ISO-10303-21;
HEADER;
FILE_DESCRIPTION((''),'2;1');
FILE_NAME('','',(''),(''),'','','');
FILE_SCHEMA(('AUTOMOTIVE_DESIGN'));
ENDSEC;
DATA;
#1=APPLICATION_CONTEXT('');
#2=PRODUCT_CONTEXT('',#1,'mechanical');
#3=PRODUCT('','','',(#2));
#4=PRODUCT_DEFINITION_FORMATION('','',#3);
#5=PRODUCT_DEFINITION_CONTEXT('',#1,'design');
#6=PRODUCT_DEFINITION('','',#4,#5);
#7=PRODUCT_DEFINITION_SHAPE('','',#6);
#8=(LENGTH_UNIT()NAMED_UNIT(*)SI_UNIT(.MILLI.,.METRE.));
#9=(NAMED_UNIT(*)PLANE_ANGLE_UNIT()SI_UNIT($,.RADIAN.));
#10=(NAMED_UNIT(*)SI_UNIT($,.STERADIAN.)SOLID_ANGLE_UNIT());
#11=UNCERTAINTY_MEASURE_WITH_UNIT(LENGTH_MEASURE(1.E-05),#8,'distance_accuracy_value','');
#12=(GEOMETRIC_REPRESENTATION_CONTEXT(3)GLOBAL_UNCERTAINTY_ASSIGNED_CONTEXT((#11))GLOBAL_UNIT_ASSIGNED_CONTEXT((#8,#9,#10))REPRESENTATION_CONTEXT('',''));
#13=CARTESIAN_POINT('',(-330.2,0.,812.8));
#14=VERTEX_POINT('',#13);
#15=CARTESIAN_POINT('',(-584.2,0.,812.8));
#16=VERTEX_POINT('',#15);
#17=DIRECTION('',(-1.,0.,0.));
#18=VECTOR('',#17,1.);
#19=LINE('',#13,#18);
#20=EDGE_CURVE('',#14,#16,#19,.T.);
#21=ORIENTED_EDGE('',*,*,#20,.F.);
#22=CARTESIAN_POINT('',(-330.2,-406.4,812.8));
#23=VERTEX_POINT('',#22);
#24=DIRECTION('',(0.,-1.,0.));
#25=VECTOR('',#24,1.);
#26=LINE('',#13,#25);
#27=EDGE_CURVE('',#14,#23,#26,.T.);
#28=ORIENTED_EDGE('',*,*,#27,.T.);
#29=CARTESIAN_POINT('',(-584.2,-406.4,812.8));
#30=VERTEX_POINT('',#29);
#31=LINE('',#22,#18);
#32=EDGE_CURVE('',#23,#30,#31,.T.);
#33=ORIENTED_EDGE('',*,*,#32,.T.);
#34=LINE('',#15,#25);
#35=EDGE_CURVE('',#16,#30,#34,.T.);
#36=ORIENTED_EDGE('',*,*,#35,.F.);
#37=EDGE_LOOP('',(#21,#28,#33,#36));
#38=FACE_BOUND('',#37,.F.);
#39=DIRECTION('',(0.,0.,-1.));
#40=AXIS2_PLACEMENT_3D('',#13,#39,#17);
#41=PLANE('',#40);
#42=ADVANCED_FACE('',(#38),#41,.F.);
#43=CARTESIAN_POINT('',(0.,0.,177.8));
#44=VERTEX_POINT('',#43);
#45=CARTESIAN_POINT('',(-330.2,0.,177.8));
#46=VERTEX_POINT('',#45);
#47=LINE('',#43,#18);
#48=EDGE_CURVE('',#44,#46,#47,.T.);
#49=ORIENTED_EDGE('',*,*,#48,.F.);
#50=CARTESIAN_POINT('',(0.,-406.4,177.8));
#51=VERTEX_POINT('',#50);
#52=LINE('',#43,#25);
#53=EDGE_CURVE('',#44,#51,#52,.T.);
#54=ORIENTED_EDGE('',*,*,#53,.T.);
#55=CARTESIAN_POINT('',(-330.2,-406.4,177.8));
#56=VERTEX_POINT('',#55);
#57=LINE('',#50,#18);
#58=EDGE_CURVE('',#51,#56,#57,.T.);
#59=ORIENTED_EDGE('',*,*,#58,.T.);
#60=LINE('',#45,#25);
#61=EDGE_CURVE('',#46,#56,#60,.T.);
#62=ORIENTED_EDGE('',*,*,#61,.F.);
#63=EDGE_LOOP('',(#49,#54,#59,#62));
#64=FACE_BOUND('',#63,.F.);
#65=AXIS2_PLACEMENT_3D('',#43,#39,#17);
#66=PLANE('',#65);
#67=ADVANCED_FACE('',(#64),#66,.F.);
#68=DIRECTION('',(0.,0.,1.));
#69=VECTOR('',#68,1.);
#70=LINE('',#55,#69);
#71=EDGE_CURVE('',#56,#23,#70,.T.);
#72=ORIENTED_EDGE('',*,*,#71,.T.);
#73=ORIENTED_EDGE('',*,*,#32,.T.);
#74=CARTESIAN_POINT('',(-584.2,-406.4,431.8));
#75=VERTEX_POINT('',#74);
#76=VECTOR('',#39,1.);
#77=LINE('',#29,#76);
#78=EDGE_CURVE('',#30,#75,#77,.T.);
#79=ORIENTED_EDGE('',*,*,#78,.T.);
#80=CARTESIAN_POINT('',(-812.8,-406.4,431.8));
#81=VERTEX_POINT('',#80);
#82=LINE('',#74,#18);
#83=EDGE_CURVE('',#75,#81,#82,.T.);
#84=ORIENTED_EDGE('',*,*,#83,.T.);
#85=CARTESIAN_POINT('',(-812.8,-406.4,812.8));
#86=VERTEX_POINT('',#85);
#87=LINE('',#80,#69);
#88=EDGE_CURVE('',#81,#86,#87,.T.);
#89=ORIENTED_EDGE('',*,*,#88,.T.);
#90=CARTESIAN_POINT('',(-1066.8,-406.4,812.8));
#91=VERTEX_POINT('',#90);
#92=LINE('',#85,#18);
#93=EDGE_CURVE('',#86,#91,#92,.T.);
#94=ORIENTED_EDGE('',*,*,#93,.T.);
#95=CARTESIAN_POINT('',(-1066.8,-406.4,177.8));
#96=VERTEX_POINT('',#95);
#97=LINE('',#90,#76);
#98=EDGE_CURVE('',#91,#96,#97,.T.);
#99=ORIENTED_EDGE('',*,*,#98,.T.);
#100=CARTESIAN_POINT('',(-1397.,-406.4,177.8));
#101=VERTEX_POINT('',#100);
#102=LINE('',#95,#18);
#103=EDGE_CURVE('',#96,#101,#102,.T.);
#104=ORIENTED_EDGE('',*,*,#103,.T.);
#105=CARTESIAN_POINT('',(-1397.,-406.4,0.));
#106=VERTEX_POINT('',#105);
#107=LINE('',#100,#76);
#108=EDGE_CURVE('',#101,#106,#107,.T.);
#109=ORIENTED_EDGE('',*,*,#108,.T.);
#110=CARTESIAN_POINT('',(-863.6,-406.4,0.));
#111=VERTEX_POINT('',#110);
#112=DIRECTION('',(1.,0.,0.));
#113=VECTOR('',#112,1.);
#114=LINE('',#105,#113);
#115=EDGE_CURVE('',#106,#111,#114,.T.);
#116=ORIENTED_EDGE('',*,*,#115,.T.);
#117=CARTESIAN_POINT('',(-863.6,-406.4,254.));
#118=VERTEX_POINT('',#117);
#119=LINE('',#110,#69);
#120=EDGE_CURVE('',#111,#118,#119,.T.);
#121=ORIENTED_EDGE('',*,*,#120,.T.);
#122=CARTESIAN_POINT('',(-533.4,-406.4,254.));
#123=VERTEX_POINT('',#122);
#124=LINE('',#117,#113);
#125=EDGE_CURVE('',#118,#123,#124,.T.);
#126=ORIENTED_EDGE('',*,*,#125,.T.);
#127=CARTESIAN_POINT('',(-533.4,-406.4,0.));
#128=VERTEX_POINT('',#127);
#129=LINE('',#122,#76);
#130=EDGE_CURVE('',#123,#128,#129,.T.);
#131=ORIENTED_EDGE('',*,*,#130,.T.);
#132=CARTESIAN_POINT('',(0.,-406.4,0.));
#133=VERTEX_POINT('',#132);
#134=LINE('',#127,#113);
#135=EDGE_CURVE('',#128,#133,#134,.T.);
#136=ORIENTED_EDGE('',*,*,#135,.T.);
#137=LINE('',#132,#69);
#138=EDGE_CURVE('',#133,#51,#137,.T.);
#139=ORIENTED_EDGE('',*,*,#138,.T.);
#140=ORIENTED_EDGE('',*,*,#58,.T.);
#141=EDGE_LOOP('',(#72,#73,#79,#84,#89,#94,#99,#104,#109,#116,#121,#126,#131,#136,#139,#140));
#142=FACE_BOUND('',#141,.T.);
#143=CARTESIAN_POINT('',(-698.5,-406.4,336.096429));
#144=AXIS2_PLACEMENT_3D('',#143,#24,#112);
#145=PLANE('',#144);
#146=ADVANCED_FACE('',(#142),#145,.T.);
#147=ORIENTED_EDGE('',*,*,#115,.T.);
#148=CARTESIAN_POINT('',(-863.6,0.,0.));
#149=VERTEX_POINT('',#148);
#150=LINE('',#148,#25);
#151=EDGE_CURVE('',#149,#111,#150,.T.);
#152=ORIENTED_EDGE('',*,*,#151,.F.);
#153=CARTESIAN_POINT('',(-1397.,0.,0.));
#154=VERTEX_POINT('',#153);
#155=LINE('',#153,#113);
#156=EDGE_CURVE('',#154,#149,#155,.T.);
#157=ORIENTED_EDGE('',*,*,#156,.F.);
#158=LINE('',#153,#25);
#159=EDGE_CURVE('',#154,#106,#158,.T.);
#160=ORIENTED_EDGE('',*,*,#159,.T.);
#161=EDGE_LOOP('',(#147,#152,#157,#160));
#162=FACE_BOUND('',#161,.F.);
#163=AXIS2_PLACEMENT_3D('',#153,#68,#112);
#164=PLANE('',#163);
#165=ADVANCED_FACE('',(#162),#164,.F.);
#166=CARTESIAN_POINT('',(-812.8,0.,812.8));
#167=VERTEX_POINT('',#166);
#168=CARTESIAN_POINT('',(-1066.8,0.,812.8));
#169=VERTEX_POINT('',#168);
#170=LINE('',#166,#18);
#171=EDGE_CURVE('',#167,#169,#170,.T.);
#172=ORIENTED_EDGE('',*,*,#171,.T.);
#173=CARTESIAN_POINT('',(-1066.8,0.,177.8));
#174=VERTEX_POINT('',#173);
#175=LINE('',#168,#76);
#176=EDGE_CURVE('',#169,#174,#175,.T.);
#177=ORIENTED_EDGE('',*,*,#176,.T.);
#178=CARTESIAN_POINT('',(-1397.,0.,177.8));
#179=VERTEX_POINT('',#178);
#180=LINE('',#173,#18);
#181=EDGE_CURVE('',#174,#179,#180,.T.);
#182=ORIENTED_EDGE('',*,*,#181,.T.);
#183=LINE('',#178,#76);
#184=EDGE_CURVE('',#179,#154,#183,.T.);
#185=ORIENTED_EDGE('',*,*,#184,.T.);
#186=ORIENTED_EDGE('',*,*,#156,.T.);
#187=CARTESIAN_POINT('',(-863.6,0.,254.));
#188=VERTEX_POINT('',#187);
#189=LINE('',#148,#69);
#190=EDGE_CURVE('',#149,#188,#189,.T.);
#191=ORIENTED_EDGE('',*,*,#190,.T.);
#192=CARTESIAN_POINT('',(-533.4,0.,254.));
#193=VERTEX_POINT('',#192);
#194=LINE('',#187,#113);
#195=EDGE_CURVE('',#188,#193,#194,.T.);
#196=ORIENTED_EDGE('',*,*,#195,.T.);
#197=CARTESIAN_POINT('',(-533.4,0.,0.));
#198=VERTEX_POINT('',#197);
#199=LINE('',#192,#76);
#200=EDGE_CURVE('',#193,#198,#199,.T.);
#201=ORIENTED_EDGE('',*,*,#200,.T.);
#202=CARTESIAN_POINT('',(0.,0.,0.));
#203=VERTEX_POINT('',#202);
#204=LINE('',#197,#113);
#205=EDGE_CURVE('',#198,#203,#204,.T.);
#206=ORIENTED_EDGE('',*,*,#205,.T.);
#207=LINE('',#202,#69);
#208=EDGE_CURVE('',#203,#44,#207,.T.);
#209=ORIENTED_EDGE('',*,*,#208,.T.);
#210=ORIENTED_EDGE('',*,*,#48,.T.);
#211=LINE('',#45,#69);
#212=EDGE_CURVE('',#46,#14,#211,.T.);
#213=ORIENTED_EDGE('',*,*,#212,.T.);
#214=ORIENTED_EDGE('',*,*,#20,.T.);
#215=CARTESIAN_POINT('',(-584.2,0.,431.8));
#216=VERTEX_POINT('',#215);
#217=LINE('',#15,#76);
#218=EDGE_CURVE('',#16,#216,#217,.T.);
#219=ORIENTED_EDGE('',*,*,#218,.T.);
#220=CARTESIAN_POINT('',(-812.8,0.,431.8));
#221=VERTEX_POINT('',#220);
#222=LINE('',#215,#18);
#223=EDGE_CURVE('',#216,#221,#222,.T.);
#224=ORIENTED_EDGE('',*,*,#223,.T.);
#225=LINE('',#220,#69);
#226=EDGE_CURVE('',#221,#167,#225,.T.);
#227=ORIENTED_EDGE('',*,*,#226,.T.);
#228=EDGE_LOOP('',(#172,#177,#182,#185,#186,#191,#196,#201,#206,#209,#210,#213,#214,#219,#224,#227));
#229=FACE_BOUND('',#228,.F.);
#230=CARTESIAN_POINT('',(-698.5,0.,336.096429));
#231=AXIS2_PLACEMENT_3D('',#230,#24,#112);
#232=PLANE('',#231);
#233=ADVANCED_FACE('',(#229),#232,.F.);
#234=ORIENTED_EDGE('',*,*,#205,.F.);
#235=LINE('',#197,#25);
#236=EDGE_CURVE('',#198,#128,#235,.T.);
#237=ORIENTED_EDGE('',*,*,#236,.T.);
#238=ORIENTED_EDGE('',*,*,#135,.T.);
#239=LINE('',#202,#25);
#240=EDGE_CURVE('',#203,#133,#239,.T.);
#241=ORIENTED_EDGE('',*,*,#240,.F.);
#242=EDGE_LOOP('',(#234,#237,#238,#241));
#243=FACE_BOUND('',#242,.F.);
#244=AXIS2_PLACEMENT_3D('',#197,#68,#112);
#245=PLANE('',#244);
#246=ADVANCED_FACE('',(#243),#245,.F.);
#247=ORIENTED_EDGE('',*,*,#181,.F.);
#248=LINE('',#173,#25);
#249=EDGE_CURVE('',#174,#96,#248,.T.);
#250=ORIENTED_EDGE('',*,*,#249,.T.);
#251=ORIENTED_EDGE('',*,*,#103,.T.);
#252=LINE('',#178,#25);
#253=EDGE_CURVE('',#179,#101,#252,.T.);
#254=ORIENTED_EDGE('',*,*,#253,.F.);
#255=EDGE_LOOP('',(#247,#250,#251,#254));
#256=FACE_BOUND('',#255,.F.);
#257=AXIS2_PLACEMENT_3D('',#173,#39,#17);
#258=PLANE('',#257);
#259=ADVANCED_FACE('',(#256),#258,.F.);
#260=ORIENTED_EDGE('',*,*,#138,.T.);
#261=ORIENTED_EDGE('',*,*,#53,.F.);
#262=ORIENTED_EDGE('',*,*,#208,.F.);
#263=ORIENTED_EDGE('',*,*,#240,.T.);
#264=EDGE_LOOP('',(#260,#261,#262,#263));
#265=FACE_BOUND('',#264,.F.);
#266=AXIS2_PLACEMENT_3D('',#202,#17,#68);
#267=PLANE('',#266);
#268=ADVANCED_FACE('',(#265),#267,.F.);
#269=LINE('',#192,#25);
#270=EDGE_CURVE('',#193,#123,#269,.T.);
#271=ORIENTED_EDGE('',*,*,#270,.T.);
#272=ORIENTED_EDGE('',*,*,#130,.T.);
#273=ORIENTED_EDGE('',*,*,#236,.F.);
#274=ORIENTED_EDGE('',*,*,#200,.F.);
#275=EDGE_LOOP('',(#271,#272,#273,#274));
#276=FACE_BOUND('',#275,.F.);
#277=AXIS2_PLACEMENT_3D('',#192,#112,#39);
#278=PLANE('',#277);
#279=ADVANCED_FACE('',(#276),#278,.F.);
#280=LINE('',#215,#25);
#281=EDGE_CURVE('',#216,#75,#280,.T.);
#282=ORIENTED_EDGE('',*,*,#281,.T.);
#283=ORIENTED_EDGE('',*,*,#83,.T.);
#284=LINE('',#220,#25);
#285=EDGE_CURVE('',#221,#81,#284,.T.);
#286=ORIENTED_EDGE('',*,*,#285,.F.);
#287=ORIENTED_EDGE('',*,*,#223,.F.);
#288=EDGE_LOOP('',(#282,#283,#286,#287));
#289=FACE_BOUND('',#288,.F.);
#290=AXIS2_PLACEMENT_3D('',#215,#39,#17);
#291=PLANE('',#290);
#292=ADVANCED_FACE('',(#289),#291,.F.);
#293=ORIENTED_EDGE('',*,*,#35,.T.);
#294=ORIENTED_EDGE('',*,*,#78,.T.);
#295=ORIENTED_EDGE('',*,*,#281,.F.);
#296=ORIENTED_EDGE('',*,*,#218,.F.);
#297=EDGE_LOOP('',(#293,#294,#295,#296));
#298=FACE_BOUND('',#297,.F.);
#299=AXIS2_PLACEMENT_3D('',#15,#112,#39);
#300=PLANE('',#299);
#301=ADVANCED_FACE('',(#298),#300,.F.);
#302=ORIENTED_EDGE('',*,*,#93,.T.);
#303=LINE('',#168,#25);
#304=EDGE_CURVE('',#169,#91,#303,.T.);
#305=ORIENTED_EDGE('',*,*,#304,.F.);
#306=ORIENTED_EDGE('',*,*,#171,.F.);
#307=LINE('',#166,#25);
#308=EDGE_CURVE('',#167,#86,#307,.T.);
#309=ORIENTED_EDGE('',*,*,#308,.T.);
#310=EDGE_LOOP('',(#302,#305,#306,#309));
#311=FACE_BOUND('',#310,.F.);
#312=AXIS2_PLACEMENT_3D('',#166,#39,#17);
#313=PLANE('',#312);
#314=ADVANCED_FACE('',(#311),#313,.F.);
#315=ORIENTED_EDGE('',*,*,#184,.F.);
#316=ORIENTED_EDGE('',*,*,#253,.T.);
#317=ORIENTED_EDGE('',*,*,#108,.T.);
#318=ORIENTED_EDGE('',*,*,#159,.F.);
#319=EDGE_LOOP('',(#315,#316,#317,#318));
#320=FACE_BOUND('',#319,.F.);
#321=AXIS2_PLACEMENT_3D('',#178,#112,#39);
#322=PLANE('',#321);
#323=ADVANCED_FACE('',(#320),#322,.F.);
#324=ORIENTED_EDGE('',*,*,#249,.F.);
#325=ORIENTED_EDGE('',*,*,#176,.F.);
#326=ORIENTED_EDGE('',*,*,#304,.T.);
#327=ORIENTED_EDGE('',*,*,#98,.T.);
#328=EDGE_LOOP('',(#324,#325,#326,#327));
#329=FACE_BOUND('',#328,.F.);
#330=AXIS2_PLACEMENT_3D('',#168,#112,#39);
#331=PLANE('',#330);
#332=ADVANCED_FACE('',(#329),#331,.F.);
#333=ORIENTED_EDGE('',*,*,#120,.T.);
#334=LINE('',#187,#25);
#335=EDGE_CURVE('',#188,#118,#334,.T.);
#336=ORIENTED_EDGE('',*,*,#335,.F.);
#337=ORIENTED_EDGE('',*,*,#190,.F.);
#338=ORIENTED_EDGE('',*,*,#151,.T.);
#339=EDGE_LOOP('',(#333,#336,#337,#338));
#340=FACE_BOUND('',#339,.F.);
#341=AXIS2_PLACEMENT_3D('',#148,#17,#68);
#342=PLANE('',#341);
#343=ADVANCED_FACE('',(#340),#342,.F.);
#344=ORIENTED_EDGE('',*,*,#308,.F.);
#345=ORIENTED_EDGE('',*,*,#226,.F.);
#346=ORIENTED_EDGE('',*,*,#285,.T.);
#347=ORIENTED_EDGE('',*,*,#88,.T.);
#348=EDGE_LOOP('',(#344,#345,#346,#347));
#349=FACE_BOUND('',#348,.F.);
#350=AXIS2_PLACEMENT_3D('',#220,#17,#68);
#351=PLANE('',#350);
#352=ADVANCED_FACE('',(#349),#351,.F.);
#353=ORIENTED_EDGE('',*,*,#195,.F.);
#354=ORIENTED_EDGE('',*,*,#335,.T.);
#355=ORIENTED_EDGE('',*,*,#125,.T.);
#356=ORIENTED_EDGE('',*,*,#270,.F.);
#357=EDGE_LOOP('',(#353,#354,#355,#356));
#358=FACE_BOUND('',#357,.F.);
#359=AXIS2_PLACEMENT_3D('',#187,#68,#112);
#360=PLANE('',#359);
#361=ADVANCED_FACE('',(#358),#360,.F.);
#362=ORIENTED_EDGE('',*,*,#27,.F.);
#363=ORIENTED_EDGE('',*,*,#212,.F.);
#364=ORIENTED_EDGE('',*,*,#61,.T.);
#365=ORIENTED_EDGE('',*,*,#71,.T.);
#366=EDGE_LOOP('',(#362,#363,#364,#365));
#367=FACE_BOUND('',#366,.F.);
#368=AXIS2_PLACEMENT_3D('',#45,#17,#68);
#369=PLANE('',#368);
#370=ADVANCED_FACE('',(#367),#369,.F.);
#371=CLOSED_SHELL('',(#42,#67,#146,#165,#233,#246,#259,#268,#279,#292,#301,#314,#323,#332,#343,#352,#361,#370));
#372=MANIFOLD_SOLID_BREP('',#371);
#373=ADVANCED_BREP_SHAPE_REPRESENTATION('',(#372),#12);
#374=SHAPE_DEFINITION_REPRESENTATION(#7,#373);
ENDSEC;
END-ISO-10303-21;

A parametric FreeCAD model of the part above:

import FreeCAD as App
import Part
import Sketcher
from FreeCAD import Vector
Q = App.Units.Quantity

doc = App.newDocument("Part")
body = doc.addObject("PartDesign::Body", "Body")

sketch1 = body.newObject("Sketcher::SketchObject", "Sketch")
sketch1.AttachmentSupport = (doc.getObject("XZ_Plane"), [""])
sketch1.MapMode = "FlatFace"
sketch1.addGeometry(Part.LineSegment(Vector(-533.4, 0, 0), Vector(0, 0, 0)), False)
sketch1.addGeometry(Part.LineSegment(Vector(0, 0, 0), Vector(0, 177.8, 0)), False)
sketch1.addGeometry(Part.LineSegment(Vector(0, 177.8, 0), Vector(-330.2, 177.8, 0)), False)
sketch1.addGeometry(Part.LineSegment(Vector(-330.2, 177.8, 0), Vector(-330.2, 812.8, 0)), False)
sketch1.addGeometry(Part.LineSegment(Vector(-330.2, 812.8, 0), Vector(-584.2, 812.8, 0)), False)
sketch1.addGeometry(Part.LineSegment(Vector(-584.2, 812.8, 0), Vector(-584.2, 431.8, 0)), False)
sketch1.addGeometry(Part.LineSegment(Vector(-584.2, 431.8, 0), Vector(-812.8, 431.8, 0)), False)
sketch1.addGeometry(Part.LineSegment(Vector(-812.8, 431.8, 0), Vector(-812.8, 812.8, 0)), False)
sketch1.addGeometry(Part.LineSegment(Vector(-812.8, 812.8, 0), Vector(-1066.8, 812.8, 0)), False)
sketch1.addGeometry(Part.LineSegment(Vector(-1066.8, 812.8, 0), Vector(-1066.8, 177.8, 0)), False)
sketch1.addGeometry(Part.LineSegment(Vector(-1066.8, 177.8, 0), Vector(-1397, 177.8, 0)), False)
sketch1.addGeometry(Part.LineSegment(Vector(-1397, 177.8, 0), Vector(-1397, 0, 0)), False)
sketch1.addGeometry(Part.LineSegment(Vector(-1397, 0, 0), Vector(-863.6, 0, 0)), False)
sketch1.addGeometry(Part.LineSegment(Vector(-863.6, 0, 0), Vector(-863.6, 254, 0)), False)
sketch1.addGeometry(Part.LineSegment(Vector(-863.6, 254, 0), Vector(-533.4, 254, 0)), False)
sketch1.addGeometry(Part.LineSegment(Vector(-533.4, 254, 0), Vector(-533.4, 0, 0)), False)
sketch1.addConstraint(Sketcher.Constraint("Coincident", 0, 2, 1, 1))
sketch1.addConstraint(Sketcher.Constraint("Coincident", 1, 2, 2, 1))
sketch1.addConstraint(Sketcher.Constraint("Coincident", 2, 2, 3, 1))
sketch1.addConstraint(Sketcher.Constraint("Coincident", 3, 2, 4, 1))
sketch1.addConstraint(Sketcher.Constraint("Coincident", 4, 2, 5, 1))
sketch1.addConstraint(Sketcher.Constraint("Coincident", 5, 2, 6, 1))
sketch1.addConstraint(Sketcher.Constraint("Coincident", 6, 2, 7, 1))
sketch1.addConstraint(Sketcher.Constraint("Coincident", 7, 2, 8, 1))
sketch1.addConstraint(Sketcher.Constraint("Coincident", 8, 2, 9, 1))
sketch1.addConstraint(Sketcher.Constraint("Coincident", 9, 2, 10, 1))
sketch1.addConstraint(Sketcher.Constraint("Coincident", 10, 2, 11, 1))
sketch1.addConstraint(Sketcher.Constraint("Coincident", 11, 2, 12, 1))
sketch1.addConstraint(Sketcher.Constraint("Coincident", 12, 2, 13, 1))
sketch1.addConstraint(Sketcher.Constraint("Coincident", 13, 2, 14, 1))
sketch1.addConstraint(Sketcher.Constraint("Coincident", 14, 2, 15, 1))
sketch1.addConstraint(Sketcher.Constraint("Coincident", 15, 2, 0, 1))
sketch1.addConstraint(Sketcher.Constraint("Horizontal", 0))
sketch1.addConstraint(Sketcher.Constraint("Vertical", 1))
sketch1.addConstraint(Sketcher.Constraint("Horizontal", 2))
sketch1.addConstraint(Sketcher.Constraint("Vertical", 3))
sketch1.addConstraint(Sketcher.Constraint("Horizontal", 4))
sketch1.addConstraint(Sketcher.Constraint("Vertical", 5))
sketch1.addConstraint(Sketcher.Constraint("Horizontal", 6))
sketch1.addConstraint(Sketcher.Constraint("Vertical", 7))
sketch1.addConstraint(Sketcher.Constraint("Horizontal", 8))
sketch1.addConstraint(Sketcher.Constraint("Vertical", 9))
sketch1.addConstraint(Sketcher.Constraint("Horizontal", 10))
sketch1.addConstraint(Sketcher.Constraint("Vertical", 11))
sketch1.addConstraint(Sketcher.Constraint("Horizontal", 12))
sketch1.addConstraint(Sketcher.Constraint("Vertical", 13))
sketch1.addConstraint(Sketcher.Constraint("Horizontal", 14))
sketch1.addConstraint(Sketcher.Constraint("Vertical", 15))
sketch1.addConstraint(Sketcher.Constraint("Coincident", 0, 2, -1, 1))
sketch1.addConstraint(Sketcher.Constraint("PointOnObject", 11, 2, -1))
sketch1.addConstraint(Sketcher.Constraint("Horizontal", 4, 2, 7, 2))
sketch1.addConstraint(Sketcher.Constraint("Horizontal", 2, 2, 9, 2))
sketch1.addConstraint(Sketcher.Constraint("Equal", 4, 8))
sketch1.addConstraint(Sketcher.Constraint("Equal", 2, 10))
sketch1.addConstraint(Sketcher.Constraint("Equal", 0, 12))
sketch1.addConstraint(Sketcher.Constraint("Equal", 10, 14))
sketch1.addConstraint(Sketcher.Constraint("Equal", 8, 13))
sketch1.addConstraint(Sketcher.Constraint("DistanceX", 0, 1, 0, 2, Q("21 in")))
sketch1.addConstraint(Sketcher.Constraint("DistanceX", 2, 2, 2, 1, Q("13 in")))
sketch1.addConstraint(Sketcher.Constraint("DistanceX", 4, 2, 4, 1, Q("10 in")))
sketch1.addConstraint(Sketcher.Constraint("DistanceY", 1, 1, 1, 2, Q("7 in")))
sketch1.addConstraint(Sketcher.Constraint("DistanceY", 3, 1, 3, 2, Q("25 in")))
sketch1.addConstraint(Sketcher.Constraint("DistanceY", 5, 2, 5, 1, Q("15 in")))
pad1 = body.newObject("PartDesign::Pad", "Pad")
pad1.Profile = sketch1
pad1.Length = Q("16 in")

doc.recompute()
